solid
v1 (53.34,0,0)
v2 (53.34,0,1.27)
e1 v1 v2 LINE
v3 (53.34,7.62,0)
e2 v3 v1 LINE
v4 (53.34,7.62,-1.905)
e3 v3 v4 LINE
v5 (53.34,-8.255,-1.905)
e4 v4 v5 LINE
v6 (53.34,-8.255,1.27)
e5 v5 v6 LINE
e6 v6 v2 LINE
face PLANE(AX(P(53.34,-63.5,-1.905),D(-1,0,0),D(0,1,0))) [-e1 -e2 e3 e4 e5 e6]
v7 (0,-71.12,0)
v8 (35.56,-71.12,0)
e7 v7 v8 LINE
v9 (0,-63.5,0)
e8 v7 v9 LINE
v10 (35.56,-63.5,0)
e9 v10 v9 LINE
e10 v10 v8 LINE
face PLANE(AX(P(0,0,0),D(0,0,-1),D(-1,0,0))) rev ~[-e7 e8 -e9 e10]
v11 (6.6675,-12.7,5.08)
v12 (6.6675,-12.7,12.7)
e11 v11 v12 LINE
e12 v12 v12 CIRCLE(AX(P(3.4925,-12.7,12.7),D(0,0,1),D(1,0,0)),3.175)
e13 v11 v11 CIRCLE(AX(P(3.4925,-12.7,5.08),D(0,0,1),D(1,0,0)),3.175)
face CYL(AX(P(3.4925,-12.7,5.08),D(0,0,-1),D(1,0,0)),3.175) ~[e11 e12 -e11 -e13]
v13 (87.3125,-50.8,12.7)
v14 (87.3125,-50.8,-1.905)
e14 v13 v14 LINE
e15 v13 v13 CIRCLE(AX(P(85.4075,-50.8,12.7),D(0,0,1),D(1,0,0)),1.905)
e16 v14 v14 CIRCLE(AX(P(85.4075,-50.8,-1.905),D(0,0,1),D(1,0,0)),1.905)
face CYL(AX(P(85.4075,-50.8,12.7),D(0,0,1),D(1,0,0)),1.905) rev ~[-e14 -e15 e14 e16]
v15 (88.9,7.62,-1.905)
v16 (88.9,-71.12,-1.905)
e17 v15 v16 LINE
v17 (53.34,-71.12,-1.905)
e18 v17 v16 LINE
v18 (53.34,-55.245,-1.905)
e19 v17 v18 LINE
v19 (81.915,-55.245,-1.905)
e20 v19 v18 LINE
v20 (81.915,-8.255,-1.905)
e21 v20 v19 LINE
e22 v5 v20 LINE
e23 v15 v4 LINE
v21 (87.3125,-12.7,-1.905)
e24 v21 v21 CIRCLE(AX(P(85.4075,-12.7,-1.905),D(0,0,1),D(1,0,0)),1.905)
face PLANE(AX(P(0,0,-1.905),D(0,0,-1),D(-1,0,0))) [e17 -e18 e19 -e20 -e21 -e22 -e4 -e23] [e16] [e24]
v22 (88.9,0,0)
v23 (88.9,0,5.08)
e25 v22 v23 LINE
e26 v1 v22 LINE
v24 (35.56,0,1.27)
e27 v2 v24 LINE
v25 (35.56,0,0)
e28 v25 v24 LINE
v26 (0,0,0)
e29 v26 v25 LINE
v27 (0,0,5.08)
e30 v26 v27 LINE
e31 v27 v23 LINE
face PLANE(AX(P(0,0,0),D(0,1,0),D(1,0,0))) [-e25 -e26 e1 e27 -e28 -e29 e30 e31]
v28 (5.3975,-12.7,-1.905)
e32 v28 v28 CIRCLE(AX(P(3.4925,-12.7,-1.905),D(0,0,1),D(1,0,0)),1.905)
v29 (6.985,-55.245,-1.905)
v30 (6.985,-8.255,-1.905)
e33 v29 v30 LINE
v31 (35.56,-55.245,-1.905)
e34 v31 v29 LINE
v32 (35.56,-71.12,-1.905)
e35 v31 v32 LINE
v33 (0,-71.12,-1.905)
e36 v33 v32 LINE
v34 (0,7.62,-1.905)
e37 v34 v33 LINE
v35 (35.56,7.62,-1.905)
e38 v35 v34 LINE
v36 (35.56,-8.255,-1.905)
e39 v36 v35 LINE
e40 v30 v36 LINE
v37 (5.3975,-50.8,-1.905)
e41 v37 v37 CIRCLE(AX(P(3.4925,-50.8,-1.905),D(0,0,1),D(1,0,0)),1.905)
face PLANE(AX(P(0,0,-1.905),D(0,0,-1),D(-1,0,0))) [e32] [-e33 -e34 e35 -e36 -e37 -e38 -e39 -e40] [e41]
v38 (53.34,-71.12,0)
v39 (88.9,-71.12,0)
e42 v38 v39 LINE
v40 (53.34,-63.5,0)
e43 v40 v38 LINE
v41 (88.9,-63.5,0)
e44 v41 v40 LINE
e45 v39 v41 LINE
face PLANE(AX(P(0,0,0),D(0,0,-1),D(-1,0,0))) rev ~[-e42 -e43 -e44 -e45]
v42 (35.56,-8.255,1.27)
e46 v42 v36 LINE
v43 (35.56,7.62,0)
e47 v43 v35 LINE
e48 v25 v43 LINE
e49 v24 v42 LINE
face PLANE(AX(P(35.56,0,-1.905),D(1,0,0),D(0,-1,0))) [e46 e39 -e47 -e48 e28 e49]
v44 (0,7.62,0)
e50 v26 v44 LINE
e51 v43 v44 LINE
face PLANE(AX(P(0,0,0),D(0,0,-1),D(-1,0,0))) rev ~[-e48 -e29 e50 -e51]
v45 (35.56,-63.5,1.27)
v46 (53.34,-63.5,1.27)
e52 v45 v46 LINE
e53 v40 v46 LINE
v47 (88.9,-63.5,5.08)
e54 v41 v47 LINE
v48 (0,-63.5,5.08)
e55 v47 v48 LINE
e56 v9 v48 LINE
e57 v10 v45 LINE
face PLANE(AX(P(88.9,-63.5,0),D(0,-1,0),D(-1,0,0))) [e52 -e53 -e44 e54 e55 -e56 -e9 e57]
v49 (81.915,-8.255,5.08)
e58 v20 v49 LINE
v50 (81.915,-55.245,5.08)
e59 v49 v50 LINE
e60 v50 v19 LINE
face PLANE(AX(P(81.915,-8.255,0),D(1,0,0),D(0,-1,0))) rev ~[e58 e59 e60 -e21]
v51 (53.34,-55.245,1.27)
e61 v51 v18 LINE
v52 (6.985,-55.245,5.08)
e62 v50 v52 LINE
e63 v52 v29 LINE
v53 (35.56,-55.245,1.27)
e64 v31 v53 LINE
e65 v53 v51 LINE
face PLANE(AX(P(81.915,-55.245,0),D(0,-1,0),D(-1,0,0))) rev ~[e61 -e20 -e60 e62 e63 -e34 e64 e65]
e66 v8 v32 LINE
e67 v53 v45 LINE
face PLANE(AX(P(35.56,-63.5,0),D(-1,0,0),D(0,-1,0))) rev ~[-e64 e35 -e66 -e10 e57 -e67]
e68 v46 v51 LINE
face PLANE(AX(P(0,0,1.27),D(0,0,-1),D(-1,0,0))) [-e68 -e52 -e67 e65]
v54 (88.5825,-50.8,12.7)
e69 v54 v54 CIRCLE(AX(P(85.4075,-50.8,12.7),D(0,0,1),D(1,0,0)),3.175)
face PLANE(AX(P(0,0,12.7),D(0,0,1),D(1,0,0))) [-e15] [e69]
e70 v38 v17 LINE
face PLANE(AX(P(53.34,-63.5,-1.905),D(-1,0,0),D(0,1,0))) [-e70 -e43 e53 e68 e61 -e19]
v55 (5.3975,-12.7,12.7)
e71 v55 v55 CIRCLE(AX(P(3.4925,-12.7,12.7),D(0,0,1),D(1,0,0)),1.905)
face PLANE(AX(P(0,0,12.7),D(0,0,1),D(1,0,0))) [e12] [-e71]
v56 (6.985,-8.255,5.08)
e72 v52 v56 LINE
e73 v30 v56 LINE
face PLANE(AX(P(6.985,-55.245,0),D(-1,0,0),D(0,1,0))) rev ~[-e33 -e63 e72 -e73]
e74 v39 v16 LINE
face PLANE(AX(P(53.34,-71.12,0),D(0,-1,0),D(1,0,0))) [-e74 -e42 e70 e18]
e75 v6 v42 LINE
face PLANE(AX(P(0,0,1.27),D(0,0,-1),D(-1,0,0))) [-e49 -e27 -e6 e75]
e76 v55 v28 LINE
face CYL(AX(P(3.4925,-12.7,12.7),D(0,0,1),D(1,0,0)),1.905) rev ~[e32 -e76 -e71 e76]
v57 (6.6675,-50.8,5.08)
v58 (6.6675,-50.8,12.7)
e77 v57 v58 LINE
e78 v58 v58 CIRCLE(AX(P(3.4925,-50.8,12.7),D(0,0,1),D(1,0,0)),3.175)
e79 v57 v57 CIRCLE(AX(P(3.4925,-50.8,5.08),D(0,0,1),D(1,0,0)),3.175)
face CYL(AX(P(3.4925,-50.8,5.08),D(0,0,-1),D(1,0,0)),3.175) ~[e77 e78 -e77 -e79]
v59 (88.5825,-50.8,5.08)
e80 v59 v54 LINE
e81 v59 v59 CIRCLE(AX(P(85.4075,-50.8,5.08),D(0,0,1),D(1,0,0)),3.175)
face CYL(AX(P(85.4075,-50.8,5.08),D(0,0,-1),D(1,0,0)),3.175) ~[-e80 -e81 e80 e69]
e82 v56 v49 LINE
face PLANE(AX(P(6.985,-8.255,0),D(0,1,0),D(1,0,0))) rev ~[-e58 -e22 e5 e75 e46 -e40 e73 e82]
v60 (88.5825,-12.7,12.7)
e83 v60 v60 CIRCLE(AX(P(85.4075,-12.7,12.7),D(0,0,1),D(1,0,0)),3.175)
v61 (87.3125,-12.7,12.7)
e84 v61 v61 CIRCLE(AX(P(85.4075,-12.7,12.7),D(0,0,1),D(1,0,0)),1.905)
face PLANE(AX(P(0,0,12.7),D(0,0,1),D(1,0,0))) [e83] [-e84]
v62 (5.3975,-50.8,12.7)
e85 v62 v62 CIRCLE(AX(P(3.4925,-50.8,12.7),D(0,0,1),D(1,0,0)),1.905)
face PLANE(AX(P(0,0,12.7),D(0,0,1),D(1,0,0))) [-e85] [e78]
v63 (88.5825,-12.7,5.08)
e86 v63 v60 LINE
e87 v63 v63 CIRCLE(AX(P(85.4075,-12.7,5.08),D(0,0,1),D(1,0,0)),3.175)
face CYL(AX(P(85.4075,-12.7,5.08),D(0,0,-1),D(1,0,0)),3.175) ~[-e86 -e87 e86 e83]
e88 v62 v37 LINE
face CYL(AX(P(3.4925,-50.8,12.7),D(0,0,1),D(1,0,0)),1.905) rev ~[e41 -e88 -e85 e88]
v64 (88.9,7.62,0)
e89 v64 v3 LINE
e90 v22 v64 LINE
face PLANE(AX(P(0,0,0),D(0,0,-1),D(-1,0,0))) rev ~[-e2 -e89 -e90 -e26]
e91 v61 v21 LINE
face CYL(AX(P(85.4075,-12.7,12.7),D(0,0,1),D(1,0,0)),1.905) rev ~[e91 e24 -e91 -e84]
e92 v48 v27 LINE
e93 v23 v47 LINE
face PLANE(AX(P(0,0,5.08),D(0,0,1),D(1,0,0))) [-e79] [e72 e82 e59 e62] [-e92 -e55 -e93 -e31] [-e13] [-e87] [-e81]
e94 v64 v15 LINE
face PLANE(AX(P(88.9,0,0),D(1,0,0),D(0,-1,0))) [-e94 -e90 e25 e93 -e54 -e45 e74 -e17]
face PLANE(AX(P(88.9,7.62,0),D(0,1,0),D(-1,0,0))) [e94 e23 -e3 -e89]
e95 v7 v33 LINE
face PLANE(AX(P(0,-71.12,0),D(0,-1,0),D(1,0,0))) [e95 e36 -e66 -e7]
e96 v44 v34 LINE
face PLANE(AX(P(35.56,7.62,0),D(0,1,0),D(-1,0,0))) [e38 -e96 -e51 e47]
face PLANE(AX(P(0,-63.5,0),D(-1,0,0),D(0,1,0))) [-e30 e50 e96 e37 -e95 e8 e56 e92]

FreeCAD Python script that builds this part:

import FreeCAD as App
import Part
import Sketcher

V = App.Vector
Q = App.Units.Quantity

doc = App.newDocument("Part")
body = doc.addObject("PartDesign::Body", "Body")

# Sketch on XY plane
sketch1 = body.newObject("Sketcher::SketchObject", "Sketch")
sketch1.AttachmentSupport = (doc.getObject("XY_Plane"), [""])
sketch1.MapMode = "FlatFace"
sketch1.addGeometry([
    Part.LineSegment(V(88.9, 0, 0), V(0, 0, 0)),  # 0
    Part.LineSegment(V(0, 0, 0), V(0, -63.5, 0)),  # 1
    Part.LineSegment(V(0, -63.5, 0), V(88.9, -63.5, 0)),  # 2
    Part.LineSegment(V(88.9, -63.5, 0), V(88.9, 0, 0)),  # 3
    Part.LineSegment(V(6.985, -55.245, 0), V(6.985, -8.255, 0)),  # 4
    Part.LineSegment(V(6.985, -8.255, 0), V(81.915, -8.255, 0)),  # 5
    Part.LineSegment(V(81.915, -8.255, 0), V(81.915, -55.245, 0)),  # 6
    Part.LineSegment(V(81.915, -55.245, 0), V(6.985, -55.245, 0)),  # 7
], False)
sketch1.addConstraint([
    Sketcher.Constraint("Coincident", 0, 2, 1, 1),
    Sketcher.Constraint("Coincident", 1, 2, 2, 1),
    Sketcher.Constraint("Coincident", 2, 2, 3, 1),
    Sketcher.Constraint("Coincident", 3, 2, 0, 1),
    Sketcher.Constraint("Coincident", 4, 2, 5, 1),
    Sketcher.Constraint("Coincident", 5, 2, 6, 1),
    Sketcher.Constraint("Coincident", 6, 2, 7, 1),
    Sketcher.Constraint("Coincident", 7, 2, 4, 1),
    Sketcher.Constraint("Horizontal", 0),
    Sketcher.Constraint("Vertical", 1),
    Sketcher.Constraint("Horizontal", 2),
    Sketcher.Constraint("Vertical", 3),
    Sketcher.Constraint("Vertical", 4),
    Sketcher.Constraint("Horizontal", 5),
    Sketcher.Constraint("Vertical", 6),
    Sketcher.Constraint("Horizontal", 7),
    Sketcher.Constraint("Coincident", 0, 2, -1, 1),
    Sketcher.Constraint("DistanceX", 0, 2, 0, 1, Q("3.5 in")),
    Sketcher.Constraint("DistanceY", 1, 2, 1, 1, Q("2.5 in")),
    Sketcher.Constraint("DistanceX", -1, 1, 4, 2, Q("0.275 in")),
    Sketcher.Constraint("DistanceY", 4, 2, -1, 1, Q("0.325 in")),
    Sketcher.Constraint("DistanceX", 5, 2, 3, 2, Q("0.275 in")),
    Sketcher.Constraint("DistanceY", 2, 2, 6, 2, Q("0.325 in")),
])
pad1 = body.newObject("PartDesign::Pad", "Pad")
pad1.Profile = sketch1
pad1.Length = Q("0.2 in")

# Sketch on XY plane
sketch2 = body.newObject("Sketcher::SketchObject", "Sketch001")
sketch2.AttachmentSupport = (doc.getObject("XY_Plane"), [""])
sketch2.MapMode = "FlatFace"
sketch2.AttachmentOffset = App.Placement(V(0, 0, 0.2 * 25.4), App.Rotation())
sketch2.addGeometry([
    Part.Circle(V(3.4925, -12.7, 0), V(0, 0, 1), 3.175),  # 0
    Part.Circle(V(3.4925, -12.7, 0), V(0, 0, 1), 1.905),  # 1
    Part.Circle(V(3.4925, -50.8, 0), V(0, 0, 1), 3.175),  # 2
    Part.Circle(V(3.4925, -50.8, 0), V(0, 0, 1), 1.905),  # 3
    Part.Circle(V(85.4075, -50.8, 0), V(0, 0, 1), 3.175),  # 4
    Part.Circle(V(85.4075, -50.8, 0), V(0, 0, 1), 1.905),  # 5
    Part.Circle(V(85.4075, -12.7, 0), V(0, 0, 1), 3.175),  # 6
    Part.Circle(V(85.4075, -12.7, 0), V(0, 0, 1), 1.905),  # 7
], False)
sketch2.addConstraint([
    Sketcher.Constraint("Coincident", 1, 3, 0, 3),
    Sketcher.Constraint("Coincident", 3, 3, 2, 3),
    Sketcher.Constraint("Coincident", 5, 3, 4, 3),
    Sketcher.Constraint("Coincident", 7, 3, 6, 3),
    Sketcher.Constraint("Equal", 0, 2),
    Sketcher.Constraint("Equal", 1, 3),
    Sketcher.Constraint("Equal", 2, 4),
    Sketcher.Constraint("Equal", 3, 5),
    Sketcher.Constraint("Equal", 4, 6),
    Sketcher.Constraint("Equal", 5, 7),
    Sketcher.Constraint("Horizontal", 3, 3, 4, 3),
    Sketcher.Constraint("Horizontal", 1, 3, 6, 3),
    Sketcher.Constraint("Vertical", 1, 3, 2, 3),
    Sketcher.Constraint("Vertical", 5, 3, 6, 3),
    Sketcher.Constraint("Diameter", 0, Q("0.25 in")),
    Sketcher.Constraint("Diameter", 1, Q("0.15 in")),
    Sketcher.Constraint("DistanceY", 0, 3, -1, 1, Q("0.5 in")),
    Sketcher.Constraint("DistanceY", 2, 3, -1, 1, Q("2 in")),
    Sketcher.Constraint("DistanceX", -1, 1, 0, 3, Q("0.1375 in")),
    Sketcher.Constraint("DistanceX", 2, 3, 4, 3, Q("3.225 in")),
])
pad2 = body.newObject("PartDesign::Pad", "Pad001")
pad2.Profile = sketch2
pad2.Length = Q("0.3 in")

# Sketch on XY plane
sketch3 = body.newObject("Sketcher::SketchObject", "Sketch002")
sketch3.AttachmentSupport = (doc.getObject("XY_Plane"), [""])
sketch3.MapMode = "FlatFace"
sketch3.addGeometry([
    Part.LineSegment(V(0, 7.62, 0), V(35.56, 7.62, 0)),  # 0
    Part.LineSegment(V(35.56, 7.62, 0), V(35.56, 0, 0)),  # 1
    Part.LineSegment(V(35.56, 0, 0), V(53.34, 0, 0)),  # 2
    Part.LineSegment(V(53.34, 0, 0), V(53.34, 7.62, 0)),  # 3
    Part.LineSegment(V(53.34, 7.62, 0), V(88.9, 7.62, 0)),  # 4
    Part.LineSegment(V(88.9, 7.62, 0), V(88.9, -71.12, 0)),  # 5
    Part.LineSegment(V(88.9, -71.12, 0), V(53.34, -71.12, 0)),  # 6
    Part.LineSegment(V(53.34, -71.12, 0), V(53.34, -63.5, 0)),  # 7
    Part.LineSegment(V(53.34, -63.5, 0), V(35.56, -63.5, 0)),  # 8
    Part.LineSegment(V(35.56, -63.5, 0), V(35.56, -71.12, 0)),  # 9
    Part.LineSegment(V(35.56, -71.12, 0), V(0, -71.12, 0)),  # 10
    Part.LineSegment(V(0, -71.12, 0), V(0, 7.62, 0)),  # 11
], False)
sketch3.addConstraint([
    Sketcher.Constraint("Coincident", 0, 2, 1, 1),
    Sketcher.Constraint("Coincident", 1, 2, 2, 1),
    Sketcher.Constraint("Coincident", 2, 2, 3, 1),
    Sketcher.Constraint("Coincident", 3, 2, 4, 1),
    Sketcher.Constraint("Coincident", 4, 2, 5, 1),
    Sketcher.Constraint("Coincident", 5, 2, 6, 1),
    Sketcher.Constraint("Coincident", 6, 2, 7, 1),
    Sketcher.Constraint("Coincident", 7, 2, 8, 1),
    Sketcher.Constraint("Coincident", 8, 2, 9, 1),
    Sketcher.Constraint("Coincident", 9, 2, 10, 1),
    Sketcher.Constraint("Coincident", 10, 2, 11, 1),
    Sketcher.Constraint("Coincident", 11, 2, 0, 1),
    Sketcher.Constraint("Horizontal", 0),
    Sketcher.Constraint("Vertical", 1),
    Sketcher.Constraint("Horizontal", 2),
    Sketcher.Constraint("Vertical", 3),
    Sketcher.Constraint("Horizontal", 4),
    Sketcher.Constraint("Vertical", 5),
    Sketcher.Constraint("Horizontal", 6),
    Sketcher.Constraint("Vertical", 7),
    Sketcher.Constraint("Horizontal", 8),
    Sketcher.Constraint("Vertical", 9),
    Sketcher.Constraint("Horizontal", 10),
    Sketcher.Constraint("Vertical", 11),
    Sketcher.Constraint("PointOnObject", 1, 2, -1),
    Sketcher.Constraint("PointOnObject", 10, 2, -2),
    Sketcher.Constraint("Horizontal", 0, 2, 3, 2),
    Sketcher.Constraint("Horizontal", 6, 2, 9, 2),
    Sketcher.Constraint("Vertical", 3, 2, 6, 2),
    Sketcher.Constraint("Vertical", 1, 2, 8, 2),
    Sketcher.Constraint("Equal", 0, 4),
    Sketcher.Constraint("Equal", 3, 7),
    Sketcher.Constraint("DistanceX", 0, 1, 0, 2, Q("1.4 in")),
    Sketcher.Constraint("DistanceX", 2, 1, 2, 2, Q("0.7 in")),
    Sketcher.Constraint("DistanceY", 1, 2, 1, 1, Q("0.3 in")),
    Sketcher.Constraint("DistanceY", 5, 2, 5, 1, Q("3.1 in")),
])
pad3 = body.newObject("PartDesign::Pad", "Pad002")
pad3.Profile = sketch3
pad3.Length = Q("0.075 in")
pad3.Reversed = True

# Sketch on XY plane
sketch4 = body.newObject("Sketcher::SketchObject", "Sketch003")
sketch4.AttachmentSupport = (doc.getObject("XY_Plane"), [""])
sketch4.MapMode = "FlatFace"
sketch4.addGeometry([
    Part.LineSegment(V(81.915, -8.255, 0), V(6.985, -8.255, 0)),
    Part.LineSegment(V(6.985, -8.255, 0), V(6.985, -55.245, 0)),
    Part.LineSegment(V(6.985, -55.245, 0), V(81.915, -55.245, 0)),
    Part.LineSegment(V(81.915, -55.245, 0), V(81.915, -8.255, 0)),
], False)
sketch4.addConstraint([
    Sketcher.Constraint("Coincident", 0, 2, 1, 1),
    Sketcher.Constraint("Coincident", 1, 2, 2, 1),
    Sketcher.Constraint("Coincident", 2, 2, 3, 1),
    Sketcher.Constraint("Coincident", 3, 2, 0, 1),
    Sketcher.Constraint("Horizontal", 0),
    Sketcher.Constraint("Vertical", 1),
    Sketcher.Constraint("Horizontal", 2),
    Sketcher.Constraint("Vertical", 3),
    Sketcher.Constraint("DistanceX", 0, 2, 0, 1, Q("2.95 in")),
    Sketcher.Constraint("DistanceY", 1, 2, 1, 1, Q("1.85 in")),
    Sketcher.Constraint("DistanceX", -1, 1, 0, 2, Q("0.275 in")),
    Sketcher.Constraint("DistanceY", 0, 2, -1, 1, Q("0.325 in")),
])
pocket1 = body.newObject("PartDesign::Pocket", "Pocket")
pocket1.Profile = sketch4
pocket1.Length = Q("0.075 in")

# Sketch on XY plane
sketch5 = body.newObject("Sketcher::SketchObject", "Sketch004")
sketch5.AttachmentSupport = (doc.getObject("XY_Plane"), [""])
sketch5.MapMode = "FlatFace"
sketch5.AttachmentOffset = App.Placement(V(0, 0, -0.075 * 25.4), App.Rotation())
sketch5.addGeometry([
    Part.LineSegment(V(53.34, -63.5, 0), V(35.56, -63.5, 0)),
    Part.LineSegment(V(35.56, -63.5, 0), V(35.56, 0, 0)),
    Part.LineSegment(V(35.56, 0, 0), V(53.34, 0, 0)),
    Part.LineSegment(V(53.34, 0, 0), V(53.34, -63.5, 0)),
], False)
sketch5.addConstraint([
    Sketcher.Constraint("Coincident", 0, 2, 1, 1),
    Sketcher.Constraint("Coincident", 1, 2, 2, 1),
    Sketcher.Constraint("Coincident", 2, 2, 3, 1),
    Sketcher.Constraint("Coincident", 3, 2, 0, 1),
    Sketcher.Constraint("Horizontal", 0),
    Sketcher.Constraint("Vertical", 1),
    Sketcher.Constraint("Horizontal", 2),
    Sketcher.Constraint("Vertical", 3),
    Sketcher.Constraint("PointOnObject", 1, 2, -1),
    Sketcher.Constraint("DistanceX", 0, 2, 0, 1, Q("0.7 in")),
    Sketcher.Constraint("DistanceY", 1, 1, 1, 2, Q("2.5 in")),
    Sketcher.Constraint("DistanceX", -1, 1, 0, 2, Q("1.4 in")),
])
pocket2 = body.newObject("PartDesign::Pocket", "Pocket001")
pocket2.Profile = sketch5
pocket2.Length = Q("0.125 in")
pocket2.Reversed = True

# Sketch on XY plane
sketch6 = body.newObject("Sketcher::SketchObject", "Sketch005")
sketch6.AttachmentSupport = (doc.getObject("XY_Plane"), [""])
sketch6.MapMode = "FlatFace"
sketch6.AttachmentOffset = App.Placement(V(0, 0, 0.5 * 25.4), App.Rotation())
sketch6.addGeometry([
    Part.Circle(V(85.4075, -12.7, 0), V(0, 0, 1), 1.905),
    Part.Circle(V(3.4925, -12.7, 0), V(0, 0, 1), 1.905),
    Part.Circle(V(85.4075, -50.8, 0), V(0, 0, 1), 1.905),
    Part.Circle(V(3.4925, -50.8, 0), V(0, 0, 1), 1.905),
], False)
sketch6.addConstraint([
    Sketcher.Constraint("Equal", 0, 1),
    Sketcher.Constraint("Equal", 1, 2),
    Sketcher.Constraint("Equal", 2, 3),
    Sketcher.Constraint("Horizontal", 0, 3, 1, 3),
    Sketcher.Constraint("Horizontal", 2, 3, 3, 3),
    Sketcher.Constraint("Vertical", 0, 3, 2, 3),
    Sketcher.Constraint("Vertical", 1, 3, 3, 3),
    Sketcher.Constraint("Diameter", 0, Q("0.15 in")),
    Sketcher.Constraint("DistanceY", 2, 3, -1, 1, Q("2 in")),
    Sketcher.Constraint("DistanceY", 0, 3, -1, 1, Q("0.5 in")),
    Sketcher.Constraint("DistanceX", 1, 3, 0, 3, Q("3.225 in")),
    Sketcher.Constraint("DistanceX", -1, 1, 0, 3, Q("3.3625 in")),
])
pocket3 = body.newObject("PartDesign::Pocket", "Pocket002")
pocket3.Profile = sketch6
pocket3.Length = Q("1 in")

doc.recompute()
